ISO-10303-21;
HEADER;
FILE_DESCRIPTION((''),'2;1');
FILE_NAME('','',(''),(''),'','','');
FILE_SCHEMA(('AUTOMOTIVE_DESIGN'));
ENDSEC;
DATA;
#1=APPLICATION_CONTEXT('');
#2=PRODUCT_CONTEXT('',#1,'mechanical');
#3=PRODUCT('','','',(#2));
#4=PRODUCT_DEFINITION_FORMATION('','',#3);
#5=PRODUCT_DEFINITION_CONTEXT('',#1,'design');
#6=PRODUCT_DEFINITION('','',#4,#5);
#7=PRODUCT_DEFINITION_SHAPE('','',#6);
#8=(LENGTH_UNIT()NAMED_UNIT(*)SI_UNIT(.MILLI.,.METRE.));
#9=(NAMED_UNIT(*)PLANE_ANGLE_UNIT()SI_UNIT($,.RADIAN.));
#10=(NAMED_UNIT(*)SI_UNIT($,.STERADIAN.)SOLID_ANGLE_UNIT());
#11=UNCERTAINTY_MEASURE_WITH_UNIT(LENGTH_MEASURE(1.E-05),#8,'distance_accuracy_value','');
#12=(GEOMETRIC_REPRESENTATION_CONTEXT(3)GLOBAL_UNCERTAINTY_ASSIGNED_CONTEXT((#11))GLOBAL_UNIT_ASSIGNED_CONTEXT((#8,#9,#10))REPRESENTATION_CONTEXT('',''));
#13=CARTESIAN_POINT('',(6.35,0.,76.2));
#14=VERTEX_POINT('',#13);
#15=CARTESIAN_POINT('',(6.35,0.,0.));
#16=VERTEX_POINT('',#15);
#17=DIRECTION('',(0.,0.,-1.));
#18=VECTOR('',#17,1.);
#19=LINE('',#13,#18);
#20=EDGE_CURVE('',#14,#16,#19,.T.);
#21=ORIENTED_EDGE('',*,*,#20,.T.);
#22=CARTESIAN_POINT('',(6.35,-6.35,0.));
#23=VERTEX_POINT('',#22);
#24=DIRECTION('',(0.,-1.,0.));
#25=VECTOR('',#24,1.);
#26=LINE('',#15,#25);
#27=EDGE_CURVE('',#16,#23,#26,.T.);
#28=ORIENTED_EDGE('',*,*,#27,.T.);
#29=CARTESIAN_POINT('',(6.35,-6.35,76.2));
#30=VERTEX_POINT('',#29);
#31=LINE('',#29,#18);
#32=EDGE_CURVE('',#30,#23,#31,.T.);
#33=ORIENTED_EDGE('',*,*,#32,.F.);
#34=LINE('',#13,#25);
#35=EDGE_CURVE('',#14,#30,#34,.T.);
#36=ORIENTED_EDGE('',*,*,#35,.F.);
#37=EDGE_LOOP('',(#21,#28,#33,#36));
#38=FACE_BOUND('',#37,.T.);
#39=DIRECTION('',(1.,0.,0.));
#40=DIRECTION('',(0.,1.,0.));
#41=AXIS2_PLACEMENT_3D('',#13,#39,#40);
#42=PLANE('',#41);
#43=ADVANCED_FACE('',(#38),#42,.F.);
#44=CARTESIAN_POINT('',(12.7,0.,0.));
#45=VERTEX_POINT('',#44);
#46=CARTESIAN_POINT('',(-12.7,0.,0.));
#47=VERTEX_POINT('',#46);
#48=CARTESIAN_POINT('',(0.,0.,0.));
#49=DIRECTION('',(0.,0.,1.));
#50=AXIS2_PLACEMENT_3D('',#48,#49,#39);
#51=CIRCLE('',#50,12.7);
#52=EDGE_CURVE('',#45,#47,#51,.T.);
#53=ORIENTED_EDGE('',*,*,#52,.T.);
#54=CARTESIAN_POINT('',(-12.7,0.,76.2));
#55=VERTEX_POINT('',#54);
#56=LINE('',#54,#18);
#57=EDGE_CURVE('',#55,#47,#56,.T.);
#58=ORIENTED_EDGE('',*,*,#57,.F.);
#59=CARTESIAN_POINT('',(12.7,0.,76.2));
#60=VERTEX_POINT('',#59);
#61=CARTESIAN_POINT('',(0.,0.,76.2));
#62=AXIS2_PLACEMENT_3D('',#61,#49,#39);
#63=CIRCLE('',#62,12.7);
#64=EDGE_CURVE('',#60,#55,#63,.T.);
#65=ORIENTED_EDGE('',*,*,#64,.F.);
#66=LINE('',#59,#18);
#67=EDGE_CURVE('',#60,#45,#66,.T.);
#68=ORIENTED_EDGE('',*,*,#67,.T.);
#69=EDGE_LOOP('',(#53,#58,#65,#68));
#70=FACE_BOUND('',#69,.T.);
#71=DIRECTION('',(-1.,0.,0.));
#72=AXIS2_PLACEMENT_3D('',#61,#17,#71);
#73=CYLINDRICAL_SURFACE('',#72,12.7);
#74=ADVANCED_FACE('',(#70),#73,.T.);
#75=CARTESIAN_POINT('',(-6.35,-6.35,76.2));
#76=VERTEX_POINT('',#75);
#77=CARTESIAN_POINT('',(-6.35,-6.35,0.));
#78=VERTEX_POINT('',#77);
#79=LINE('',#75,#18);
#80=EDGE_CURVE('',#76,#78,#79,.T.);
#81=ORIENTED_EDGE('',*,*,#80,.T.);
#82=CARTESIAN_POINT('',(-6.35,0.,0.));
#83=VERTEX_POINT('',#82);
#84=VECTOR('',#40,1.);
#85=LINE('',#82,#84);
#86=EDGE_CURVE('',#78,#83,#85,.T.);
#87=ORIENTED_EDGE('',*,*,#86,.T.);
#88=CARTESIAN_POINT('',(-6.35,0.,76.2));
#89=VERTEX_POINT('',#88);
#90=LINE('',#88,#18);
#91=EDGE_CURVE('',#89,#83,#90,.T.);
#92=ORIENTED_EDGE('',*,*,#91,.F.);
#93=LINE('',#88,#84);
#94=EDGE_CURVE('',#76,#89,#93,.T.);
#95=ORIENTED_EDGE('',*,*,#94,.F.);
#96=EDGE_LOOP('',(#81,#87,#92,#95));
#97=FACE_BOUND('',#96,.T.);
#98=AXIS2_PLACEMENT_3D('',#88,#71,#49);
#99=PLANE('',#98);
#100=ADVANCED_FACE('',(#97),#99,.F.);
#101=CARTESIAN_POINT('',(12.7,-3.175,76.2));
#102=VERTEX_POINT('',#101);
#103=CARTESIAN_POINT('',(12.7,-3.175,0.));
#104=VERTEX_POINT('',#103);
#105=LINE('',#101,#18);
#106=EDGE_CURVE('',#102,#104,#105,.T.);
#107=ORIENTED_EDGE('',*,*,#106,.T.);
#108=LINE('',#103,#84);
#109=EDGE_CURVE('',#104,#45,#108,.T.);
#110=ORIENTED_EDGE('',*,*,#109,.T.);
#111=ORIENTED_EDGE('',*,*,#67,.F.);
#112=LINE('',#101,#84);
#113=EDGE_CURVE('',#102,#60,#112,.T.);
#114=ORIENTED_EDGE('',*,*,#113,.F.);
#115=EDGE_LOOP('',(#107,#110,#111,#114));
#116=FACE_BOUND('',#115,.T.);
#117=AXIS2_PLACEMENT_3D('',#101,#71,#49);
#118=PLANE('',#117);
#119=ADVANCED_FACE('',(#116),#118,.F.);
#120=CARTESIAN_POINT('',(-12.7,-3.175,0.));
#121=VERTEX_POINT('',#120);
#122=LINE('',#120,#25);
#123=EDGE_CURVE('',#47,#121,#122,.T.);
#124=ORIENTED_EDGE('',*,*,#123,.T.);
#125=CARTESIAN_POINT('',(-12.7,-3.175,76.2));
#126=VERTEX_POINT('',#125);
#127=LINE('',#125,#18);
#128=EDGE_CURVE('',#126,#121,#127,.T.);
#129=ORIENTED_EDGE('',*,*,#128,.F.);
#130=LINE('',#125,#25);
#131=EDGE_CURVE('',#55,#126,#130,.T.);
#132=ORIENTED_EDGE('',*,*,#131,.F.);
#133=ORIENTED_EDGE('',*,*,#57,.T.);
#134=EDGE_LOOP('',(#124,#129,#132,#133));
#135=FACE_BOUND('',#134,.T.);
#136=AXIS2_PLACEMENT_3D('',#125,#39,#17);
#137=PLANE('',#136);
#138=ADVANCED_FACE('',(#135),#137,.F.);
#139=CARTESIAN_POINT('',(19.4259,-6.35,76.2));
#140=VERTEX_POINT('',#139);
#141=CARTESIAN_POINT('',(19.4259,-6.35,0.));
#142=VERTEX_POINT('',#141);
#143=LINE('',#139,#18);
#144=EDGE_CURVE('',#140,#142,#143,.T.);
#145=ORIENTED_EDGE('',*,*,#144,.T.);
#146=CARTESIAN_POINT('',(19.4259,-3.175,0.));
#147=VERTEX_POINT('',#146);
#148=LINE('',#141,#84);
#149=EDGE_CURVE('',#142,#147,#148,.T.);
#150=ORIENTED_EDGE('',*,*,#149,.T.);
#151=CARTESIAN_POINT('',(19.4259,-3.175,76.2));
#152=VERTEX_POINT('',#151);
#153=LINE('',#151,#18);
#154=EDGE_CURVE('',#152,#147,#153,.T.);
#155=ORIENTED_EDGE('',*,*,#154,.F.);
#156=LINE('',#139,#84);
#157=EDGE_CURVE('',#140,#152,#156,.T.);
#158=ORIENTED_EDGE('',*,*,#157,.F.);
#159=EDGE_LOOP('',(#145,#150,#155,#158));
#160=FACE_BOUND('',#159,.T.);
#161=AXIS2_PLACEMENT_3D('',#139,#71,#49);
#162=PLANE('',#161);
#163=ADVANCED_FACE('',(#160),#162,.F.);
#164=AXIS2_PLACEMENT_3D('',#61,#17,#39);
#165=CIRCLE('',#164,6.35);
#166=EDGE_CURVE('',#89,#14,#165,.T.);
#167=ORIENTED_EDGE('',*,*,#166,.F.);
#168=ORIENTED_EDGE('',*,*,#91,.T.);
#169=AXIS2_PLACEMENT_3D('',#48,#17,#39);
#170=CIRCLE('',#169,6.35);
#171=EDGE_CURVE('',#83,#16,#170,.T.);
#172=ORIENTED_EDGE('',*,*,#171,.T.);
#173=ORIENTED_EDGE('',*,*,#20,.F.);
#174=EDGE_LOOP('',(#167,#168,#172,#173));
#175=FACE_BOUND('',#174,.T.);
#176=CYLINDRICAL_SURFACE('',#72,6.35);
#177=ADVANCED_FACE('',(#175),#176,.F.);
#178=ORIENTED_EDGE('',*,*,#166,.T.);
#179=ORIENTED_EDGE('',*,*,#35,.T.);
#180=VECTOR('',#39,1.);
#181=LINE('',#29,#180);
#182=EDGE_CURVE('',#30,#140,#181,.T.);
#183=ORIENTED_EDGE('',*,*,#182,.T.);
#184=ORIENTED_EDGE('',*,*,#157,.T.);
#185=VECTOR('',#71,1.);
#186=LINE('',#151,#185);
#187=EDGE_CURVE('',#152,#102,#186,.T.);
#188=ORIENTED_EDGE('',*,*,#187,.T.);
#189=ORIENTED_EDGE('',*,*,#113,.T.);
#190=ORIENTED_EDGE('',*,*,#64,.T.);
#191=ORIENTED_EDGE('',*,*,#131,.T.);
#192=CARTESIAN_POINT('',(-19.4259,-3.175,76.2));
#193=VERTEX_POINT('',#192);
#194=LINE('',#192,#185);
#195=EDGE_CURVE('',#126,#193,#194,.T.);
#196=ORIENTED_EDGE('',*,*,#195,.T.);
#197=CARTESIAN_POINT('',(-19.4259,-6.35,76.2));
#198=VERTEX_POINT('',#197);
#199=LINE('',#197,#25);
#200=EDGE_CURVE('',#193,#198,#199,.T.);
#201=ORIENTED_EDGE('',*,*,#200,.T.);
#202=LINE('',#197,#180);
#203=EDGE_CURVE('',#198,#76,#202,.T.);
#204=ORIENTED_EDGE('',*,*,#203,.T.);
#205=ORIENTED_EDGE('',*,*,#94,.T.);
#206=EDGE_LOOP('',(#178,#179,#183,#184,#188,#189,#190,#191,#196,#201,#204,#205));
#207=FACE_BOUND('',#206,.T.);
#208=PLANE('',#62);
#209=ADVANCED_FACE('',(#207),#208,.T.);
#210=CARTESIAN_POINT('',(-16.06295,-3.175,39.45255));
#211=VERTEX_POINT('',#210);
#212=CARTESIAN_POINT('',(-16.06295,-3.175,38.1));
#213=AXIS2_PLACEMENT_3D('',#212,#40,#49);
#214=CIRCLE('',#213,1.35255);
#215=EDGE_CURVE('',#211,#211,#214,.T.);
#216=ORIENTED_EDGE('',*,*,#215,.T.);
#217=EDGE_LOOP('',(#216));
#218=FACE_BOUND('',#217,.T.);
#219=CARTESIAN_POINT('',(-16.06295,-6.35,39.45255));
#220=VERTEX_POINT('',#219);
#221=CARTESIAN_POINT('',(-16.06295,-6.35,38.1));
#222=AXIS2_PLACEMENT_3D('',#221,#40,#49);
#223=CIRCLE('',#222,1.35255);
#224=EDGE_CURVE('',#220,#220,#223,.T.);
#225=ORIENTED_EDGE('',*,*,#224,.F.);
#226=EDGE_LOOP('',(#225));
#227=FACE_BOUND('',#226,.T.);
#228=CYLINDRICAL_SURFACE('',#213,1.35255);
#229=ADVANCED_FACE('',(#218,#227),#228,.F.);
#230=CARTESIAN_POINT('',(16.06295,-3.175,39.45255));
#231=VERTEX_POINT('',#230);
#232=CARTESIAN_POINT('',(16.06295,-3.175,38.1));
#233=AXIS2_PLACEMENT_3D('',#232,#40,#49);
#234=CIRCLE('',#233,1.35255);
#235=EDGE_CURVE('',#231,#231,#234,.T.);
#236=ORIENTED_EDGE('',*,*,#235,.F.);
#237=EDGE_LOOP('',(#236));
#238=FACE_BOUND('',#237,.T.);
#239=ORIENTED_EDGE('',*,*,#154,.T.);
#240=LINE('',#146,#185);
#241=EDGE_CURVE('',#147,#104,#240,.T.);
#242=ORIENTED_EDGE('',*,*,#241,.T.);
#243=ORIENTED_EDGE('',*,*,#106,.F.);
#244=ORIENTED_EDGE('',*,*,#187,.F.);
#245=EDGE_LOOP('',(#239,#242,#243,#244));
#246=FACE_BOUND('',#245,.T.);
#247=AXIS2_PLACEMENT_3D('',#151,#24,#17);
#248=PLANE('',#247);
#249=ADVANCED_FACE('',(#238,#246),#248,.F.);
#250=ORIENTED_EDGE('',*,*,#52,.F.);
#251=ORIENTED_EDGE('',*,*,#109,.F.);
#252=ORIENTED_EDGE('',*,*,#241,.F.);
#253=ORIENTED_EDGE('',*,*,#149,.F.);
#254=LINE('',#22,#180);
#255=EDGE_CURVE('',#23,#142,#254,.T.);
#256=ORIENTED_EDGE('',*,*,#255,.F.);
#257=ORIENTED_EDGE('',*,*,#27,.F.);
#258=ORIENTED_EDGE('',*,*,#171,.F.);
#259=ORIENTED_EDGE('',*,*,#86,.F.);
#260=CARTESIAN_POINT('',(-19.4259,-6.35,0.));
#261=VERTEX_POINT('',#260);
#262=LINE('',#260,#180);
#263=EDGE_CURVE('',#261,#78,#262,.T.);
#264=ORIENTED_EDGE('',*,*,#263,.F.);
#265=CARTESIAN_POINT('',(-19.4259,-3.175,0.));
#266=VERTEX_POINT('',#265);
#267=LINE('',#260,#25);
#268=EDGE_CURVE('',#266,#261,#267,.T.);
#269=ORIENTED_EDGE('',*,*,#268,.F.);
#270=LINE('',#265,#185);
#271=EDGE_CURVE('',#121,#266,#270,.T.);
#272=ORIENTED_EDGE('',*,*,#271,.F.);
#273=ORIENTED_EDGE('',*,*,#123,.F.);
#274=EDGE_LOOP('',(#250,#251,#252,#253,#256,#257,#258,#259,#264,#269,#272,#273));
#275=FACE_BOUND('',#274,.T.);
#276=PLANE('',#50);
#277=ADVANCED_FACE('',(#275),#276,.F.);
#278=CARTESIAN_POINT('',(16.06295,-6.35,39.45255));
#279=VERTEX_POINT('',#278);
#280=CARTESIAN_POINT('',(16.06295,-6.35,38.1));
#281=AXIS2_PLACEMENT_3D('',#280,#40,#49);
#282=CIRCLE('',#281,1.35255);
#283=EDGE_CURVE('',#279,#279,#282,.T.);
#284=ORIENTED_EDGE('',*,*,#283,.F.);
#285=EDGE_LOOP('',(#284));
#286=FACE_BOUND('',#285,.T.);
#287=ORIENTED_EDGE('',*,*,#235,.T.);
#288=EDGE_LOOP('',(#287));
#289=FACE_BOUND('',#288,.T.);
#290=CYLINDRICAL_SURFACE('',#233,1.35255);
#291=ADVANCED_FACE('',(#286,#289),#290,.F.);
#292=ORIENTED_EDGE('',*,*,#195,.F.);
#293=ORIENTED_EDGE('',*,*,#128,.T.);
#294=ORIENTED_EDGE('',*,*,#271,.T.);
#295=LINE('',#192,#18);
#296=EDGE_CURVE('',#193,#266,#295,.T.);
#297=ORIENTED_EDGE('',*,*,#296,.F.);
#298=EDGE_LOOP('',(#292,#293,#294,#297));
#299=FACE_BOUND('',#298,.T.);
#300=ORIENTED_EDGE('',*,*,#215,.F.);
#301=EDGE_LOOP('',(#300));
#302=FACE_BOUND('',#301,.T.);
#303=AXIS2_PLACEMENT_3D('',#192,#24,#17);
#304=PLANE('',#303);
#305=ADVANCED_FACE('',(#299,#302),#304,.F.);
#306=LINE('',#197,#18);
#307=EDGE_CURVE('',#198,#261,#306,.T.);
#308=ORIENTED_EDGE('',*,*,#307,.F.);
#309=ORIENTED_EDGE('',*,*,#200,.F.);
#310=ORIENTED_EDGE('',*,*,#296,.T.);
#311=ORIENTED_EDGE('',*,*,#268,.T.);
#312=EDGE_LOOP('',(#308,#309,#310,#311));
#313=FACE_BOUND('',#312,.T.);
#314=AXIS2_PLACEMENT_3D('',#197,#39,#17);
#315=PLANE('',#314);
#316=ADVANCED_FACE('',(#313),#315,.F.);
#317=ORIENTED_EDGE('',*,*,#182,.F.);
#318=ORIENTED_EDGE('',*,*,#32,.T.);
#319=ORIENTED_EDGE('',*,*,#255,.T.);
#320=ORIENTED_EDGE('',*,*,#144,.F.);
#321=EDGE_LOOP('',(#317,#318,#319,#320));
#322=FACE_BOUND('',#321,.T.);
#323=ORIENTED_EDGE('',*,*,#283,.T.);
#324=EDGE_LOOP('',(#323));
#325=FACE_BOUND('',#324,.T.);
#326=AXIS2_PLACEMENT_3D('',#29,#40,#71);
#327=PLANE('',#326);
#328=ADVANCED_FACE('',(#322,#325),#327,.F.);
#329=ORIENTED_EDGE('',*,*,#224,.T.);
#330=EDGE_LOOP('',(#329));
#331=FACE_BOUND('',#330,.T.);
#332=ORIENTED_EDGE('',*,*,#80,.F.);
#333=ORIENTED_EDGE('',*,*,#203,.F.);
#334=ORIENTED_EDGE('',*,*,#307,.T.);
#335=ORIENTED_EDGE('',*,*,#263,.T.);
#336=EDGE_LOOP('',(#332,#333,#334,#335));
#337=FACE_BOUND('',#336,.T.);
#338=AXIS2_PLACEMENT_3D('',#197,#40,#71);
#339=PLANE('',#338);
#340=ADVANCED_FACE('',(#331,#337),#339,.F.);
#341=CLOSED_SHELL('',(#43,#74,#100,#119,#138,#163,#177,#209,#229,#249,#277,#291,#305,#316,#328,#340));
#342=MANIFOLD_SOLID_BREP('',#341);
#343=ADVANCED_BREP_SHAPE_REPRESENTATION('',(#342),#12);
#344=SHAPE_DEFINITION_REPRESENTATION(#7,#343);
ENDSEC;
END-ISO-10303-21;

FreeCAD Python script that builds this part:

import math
import FreeCAD as App
import Part
import Sketcher

V = App.Vector
Q = App.Units.Quantity

doc = App.newDocument("Part")
body = doc.addObject("PartDesign::Body", "Body")

# Sketch on XY plane
sketch1 = body.newObject("Sketcher::SketchObject", "Sketch")
sketch1.AttachmentSupport = (doc.getObject("XY_Plane"), [""])
sketch1.MapMode = "FlatFace"
sketch1.addGeometry([
    Part.LineSegment(V(-19.4259, -6.35, 0), V(-6.35, -6.35, 0)),  # 0
    Part.LineSegment(V(-6.35, -6.35, 0), V(-6.35, 0, 0)),  # 1
    Part.ArcOfCircle(Part.Circle(V(0, 0, 0), V(0, 0, 1), 6.35), math.radians(0), math.radians(180)),  # 2
    Part.LineSegment(V(6.35, 0, 0), V(6.35, -6.35, 0)),  # 3
    Part.LineSegment(V(6.35, -6.35, 0), V(19.4259, -6.35, 0)),  # 4
    Part.LineSegment(V(19.4259, -6.35, 0), V(19.4259, -3.175, 0)),  # 5
    Part.LineSegment(V(19.4259, -3.175, 0), V(12.7, -3.175, 0)),  # 6
    Part.LineSegment(V(12.7, -3.175, 0), V(12.7, 0, 0)),  # 7
    Part.ArcOfCircle(Part.Circle(V(0, 0, 0), V(0, 0, 1), 12.7), math.radians(0), math.radians(180)),  # 8
    Part.LineSegment(V(-12.7, 0, 0), V(-12.7, -3.175, 0)),  # 9
    Part.LineSegment(V(-12.7, -3.175, 0), V(-19.4259, -3.175, 0)),  # 10
    Part.LineSegment(V(-19.4259, -3.175, 0), V(-19.4259, -6.35, 0)),  # 11
], False)
sketch1.addConstraint([
    Sketcher.Constraint("Coincident", 0, 2, 1, 1),
    Sketcher.Constraint("Tangent", 1, 2, 2, 2),
    Sketcher.Constraint("Tangent", 2, 1, 3, 1),
    Sketcher.Constraint("Coincident", 3, 2, 4, 1),
    Sketcher.Constraint("Coincident", 4, 2, 5, 1),
    Sketcher.Constraint("Coincident", 5, 2, 6, 1),
    Sketcher.Constraint("Coincident", 6, 2, 7, 1),
    Sketcher.Constraint("Tangent", 7, 2, 8, 1),
    Sketcher.Constraint("Tangent", 8, 2, 9, 1),
    Sketcher.Constraint("Coincident", 9, 2, 10, 1),
    Sketcher.Constraint("Coincident", 10, 2, 11, 1),
    Sketcher.Constraint("Coincident", 11, 2, 0, 1),
    Sketcher.Constraint("Horizontal", 0),
    Sketcher.Constraint("Vertical", 1),
    Sketcher.Constraint("Vertical", 3),
    Sketcher.Constraint("Horizontal", 4),
    Sketcher.Constraint("Vertical", 5),
    Sketcher.Constraint("Horizontal", 6),
    Sketcher.Constraint("Vertical", 7),
    Sketcher.Constraint("Vertical", 9),
    Sketcher.Constraint("Horizontal", 10),
    Sketcher.Constraint("Vertical", 11),
    Sketcher.Constraint("Coincident", 2, 3, -1, 1),
    Sketcher.Constraint("Coincident", 8, 3, -1, 1),
    Sketcher.Constraint("Symmetric", 5, 2, 10, 2, -2),
    Sketcher.Constraint("Horizontal", 0, 2, 3, 2),
    Sketcher.Constraint("Equal", 5, 7),
    Sketcher.Constraint("Radius", 8, Q("0.5 in")),
    Sketcher.Constraint("Radius", 2, Q("0.25 in")),
    Sketcher.Constraint("DistanceY", 1, 1, 1, 2, Q("0.25 in")),
    Sketcher.Constraint("DistanceX", 0, 1, 0, 2, Q("13.0759 mm")),
])
pad1 = body.newObject("PartDesign::Pad", "Pad")
pad1.Profile = sketch1
pad1.Length = Q("3 in")

# Sketch on XZ plane
sketch2 = body.newObject("Sketcher::SketchObject", "Sketch001")
sketch2.AttachmentSupport = (doc.getObject("XZ_Plane"), [""])
sketch2.MapMode = "FlatFace"
sketch2.AttachmentOffset = App.Placement(V(0, 0, 0.125 * 25.4), App.Rotation())
sketch2.addGeometry([
    Part.Circle(V(-16.06295, 38.1, 0), V(0, 0, 1), 1.35255),
    Part.Circle(V(16.06295, 38.1, 0), V(0, 0, 1), 1.35255),
], False)
sketch2.addConstraint([
    Sketcher.Constraint("Equal", 0, 1),
    Sketcher.Constraint("Symmetric", 0, 3, 1, 3, -2),
    Sketcher.Constraint("Diameter", 0, Q("0.1065 in")),
    Sketcher.Constraint("DistanceY", -1, 1, 0, 3, Q("1.5 in")),
    Sketcher.Constraint("DistanceX", 0, 3, 1, 3, Q("32.1259 mm")),
])
doc.recompute()
hole = body.newObject("PartDesign::Hole", "Hole")
hole.Profile = sketch2
hole.ThreadType = "None"
hole.Diameter = Q("0.1065 in")
hole.DepthType = "ThroughAll"
hole.Reversed = True

doc.recompute()
